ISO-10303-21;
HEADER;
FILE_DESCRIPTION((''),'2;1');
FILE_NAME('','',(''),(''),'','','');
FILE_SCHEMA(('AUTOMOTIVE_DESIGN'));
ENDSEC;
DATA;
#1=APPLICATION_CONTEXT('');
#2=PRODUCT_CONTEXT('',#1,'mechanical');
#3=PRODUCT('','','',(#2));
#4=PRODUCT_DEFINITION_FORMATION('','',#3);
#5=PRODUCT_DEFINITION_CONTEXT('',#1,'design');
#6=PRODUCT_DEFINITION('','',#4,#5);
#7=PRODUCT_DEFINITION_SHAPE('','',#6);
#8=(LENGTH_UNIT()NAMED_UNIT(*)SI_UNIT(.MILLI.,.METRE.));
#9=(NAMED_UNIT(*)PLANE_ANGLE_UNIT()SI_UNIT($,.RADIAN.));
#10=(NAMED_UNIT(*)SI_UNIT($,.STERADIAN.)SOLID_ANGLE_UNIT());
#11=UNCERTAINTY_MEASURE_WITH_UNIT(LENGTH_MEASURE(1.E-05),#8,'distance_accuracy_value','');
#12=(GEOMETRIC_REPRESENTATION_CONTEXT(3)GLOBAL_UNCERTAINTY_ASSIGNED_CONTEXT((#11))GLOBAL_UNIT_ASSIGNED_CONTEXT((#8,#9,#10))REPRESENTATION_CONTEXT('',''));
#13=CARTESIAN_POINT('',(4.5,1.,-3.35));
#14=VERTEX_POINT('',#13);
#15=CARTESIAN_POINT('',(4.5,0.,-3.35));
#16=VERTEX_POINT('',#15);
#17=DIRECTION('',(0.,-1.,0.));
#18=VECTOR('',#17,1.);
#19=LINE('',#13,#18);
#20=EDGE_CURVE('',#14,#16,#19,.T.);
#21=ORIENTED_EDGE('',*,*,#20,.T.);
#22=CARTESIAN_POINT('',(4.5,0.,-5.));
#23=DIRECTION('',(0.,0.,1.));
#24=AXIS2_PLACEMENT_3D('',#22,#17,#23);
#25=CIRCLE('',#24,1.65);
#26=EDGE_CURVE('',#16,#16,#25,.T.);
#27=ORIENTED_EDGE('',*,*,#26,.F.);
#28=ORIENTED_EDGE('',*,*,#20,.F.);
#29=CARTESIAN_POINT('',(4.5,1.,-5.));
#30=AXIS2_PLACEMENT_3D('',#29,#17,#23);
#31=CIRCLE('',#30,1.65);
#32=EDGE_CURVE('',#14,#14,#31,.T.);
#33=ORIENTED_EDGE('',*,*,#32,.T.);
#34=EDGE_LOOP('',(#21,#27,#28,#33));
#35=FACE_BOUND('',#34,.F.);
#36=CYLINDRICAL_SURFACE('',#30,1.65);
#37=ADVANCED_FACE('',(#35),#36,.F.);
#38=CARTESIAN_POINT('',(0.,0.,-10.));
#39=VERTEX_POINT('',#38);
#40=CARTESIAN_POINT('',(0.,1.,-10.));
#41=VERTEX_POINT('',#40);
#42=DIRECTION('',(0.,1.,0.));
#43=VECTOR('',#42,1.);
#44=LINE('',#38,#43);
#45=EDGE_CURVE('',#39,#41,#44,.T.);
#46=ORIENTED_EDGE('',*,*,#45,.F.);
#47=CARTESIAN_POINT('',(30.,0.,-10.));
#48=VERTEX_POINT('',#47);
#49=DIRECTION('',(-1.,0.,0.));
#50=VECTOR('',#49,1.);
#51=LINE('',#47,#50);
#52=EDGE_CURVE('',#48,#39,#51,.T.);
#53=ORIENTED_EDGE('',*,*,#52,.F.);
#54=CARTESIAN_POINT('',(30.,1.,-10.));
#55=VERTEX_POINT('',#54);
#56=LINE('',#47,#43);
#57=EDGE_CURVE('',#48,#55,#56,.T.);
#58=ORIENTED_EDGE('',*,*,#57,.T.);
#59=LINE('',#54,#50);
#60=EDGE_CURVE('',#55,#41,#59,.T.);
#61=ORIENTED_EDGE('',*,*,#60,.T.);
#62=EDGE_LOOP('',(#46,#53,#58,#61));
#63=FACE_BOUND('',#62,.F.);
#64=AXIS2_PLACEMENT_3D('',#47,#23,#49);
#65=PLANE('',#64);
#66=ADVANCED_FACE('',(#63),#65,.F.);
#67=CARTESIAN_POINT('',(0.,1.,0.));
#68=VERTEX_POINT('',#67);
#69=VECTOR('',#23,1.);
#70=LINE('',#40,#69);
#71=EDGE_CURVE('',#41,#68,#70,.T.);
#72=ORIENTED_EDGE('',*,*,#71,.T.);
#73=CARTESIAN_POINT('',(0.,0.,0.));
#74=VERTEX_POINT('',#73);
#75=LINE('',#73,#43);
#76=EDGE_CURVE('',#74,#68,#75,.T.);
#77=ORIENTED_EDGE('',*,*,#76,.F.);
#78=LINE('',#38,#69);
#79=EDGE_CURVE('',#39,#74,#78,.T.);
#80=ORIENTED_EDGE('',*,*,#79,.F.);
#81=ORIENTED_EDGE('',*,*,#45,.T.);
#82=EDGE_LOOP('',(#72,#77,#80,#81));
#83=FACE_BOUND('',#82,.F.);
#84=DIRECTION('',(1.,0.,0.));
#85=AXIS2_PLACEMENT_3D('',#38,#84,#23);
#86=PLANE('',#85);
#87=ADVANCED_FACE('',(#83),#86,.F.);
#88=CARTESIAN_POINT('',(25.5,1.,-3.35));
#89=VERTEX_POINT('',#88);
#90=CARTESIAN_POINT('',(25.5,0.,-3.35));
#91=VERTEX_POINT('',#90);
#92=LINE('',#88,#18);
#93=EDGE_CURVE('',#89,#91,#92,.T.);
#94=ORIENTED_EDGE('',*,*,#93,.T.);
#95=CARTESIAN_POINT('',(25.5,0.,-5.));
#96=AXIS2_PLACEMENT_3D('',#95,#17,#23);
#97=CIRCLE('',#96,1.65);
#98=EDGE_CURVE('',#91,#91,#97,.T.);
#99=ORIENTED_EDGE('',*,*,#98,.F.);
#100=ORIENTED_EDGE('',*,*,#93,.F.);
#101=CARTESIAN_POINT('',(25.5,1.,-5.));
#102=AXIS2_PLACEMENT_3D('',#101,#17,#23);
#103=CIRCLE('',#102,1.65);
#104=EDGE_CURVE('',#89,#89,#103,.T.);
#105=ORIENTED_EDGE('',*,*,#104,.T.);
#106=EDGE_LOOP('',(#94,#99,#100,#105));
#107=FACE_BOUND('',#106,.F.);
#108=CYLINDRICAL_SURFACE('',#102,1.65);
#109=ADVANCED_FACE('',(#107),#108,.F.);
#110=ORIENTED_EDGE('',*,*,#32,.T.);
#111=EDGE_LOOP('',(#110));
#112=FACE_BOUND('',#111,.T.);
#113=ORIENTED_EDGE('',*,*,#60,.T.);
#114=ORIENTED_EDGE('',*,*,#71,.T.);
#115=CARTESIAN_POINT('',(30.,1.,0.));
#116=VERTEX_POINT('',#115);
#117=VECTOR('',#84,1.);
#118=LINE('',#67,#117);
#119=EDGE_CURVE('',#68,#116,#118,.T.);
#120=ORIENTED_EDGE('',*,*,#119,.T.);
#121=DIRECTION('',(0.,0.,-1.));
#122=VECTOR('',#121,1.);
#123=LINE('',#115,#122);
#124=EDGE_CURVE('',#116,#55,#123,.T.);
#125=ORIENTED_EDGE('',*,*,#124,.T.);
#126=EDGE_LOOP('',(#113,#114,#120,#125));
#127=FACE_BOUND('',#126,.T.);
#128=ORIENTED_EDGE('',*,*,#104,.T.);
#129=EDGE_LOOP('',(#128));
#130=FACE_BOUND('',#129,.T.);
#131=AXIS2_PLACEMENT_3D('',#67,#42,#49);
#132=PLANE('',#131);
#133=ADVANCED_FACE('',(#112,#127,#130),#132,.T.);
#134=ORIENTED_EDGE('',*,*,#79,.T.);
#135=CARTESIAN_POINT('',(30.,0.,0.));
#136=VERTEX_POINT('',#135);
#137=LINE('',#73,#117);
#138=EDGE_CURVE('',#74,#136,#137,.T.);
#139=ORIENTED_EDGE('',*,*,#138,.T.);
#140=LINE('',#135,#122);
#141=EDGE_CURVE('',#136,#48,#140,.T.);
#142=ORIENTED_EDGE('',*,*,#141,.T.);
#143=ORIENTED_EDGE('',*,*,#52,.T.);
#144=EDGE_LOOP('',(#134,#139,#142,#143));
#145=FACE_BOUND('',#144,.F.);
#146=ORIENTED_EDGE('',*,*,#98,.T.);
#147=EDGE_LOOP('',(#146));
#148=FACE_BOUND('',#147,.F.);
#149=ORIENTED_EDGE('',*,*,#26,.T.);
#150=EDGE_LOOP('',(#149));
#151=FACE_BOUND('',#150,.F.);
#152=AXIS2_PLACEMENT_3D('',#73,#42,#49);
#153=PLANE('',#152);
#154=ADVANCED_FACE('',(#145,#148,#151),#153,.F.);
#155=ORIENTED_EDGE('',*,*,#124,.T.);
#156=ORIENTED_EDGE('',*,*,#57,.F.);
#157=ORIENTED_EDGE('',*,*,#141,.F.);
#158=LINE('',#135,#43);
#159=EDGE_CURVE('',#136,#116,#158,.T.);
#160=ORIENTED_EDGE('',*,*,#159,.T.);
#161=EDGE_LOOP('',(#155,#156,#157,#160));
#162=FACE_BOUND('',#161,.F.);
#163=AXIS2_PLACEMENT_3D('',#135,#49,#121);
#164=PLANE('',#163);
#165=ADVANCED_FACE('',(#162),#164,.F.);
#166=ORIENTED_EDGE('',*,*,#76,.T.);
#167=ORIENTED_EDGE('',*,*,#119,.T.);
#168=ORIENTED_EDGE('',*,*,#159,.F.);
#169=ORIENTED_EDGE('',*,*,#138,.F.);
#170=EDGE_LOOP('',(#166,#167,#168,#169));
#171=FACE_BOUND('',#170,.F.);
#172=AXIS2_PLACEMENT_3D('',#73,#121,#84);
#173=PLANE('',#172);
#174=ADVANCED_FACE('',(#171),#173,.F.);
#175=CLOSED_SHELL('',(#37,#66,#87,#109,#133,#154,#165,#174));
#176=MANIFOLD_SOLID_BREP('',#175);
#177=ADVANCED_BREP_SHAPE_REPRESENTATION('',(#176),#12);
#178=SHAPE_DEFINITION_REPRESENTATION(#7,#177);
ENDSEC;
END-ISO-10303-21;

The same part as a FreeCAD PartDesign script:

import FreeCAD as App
import Part
import Sketcher
from FreeCAD import Vector


def add_polygon(sketch, points):
    """Adds a closed chain of lines whose ends are joined by coincident constraints."""
    first, n = sketch.GeometryCount, len(points)
    for a, b in zip(points, points[1:] + points[:1]):
        sketch.addGeometry(Part.LineSegment(App.Vector(*a, 0), App.Vector(*b, 0)), False)
    for i in range(n):
        sketch.addConstraint(Sketcher.Constraint("Coincident", first + i, 2, first + (i + 1) % n, 1))

doc = App.newDocument("Part")
body = doc.addObject("PartDesign::Body", "Body")

# Sketch on XZ plane
sketch1 = body.newObject("Sketcher::SketchObject", "Sketch")
sketch1.AttachmentSupport = (doc.getObject("XZ_Plane"), [""])
sketch1.MapMode = "FlatFace"
add_polygon(sketch1, [(0, -10), (0, 0), (30, 0), (30, -10)])  # lines 0-3
sketch1.addConstraint([
    Sketcher.Constraint("Vertical", 0),
    Sketcher.Constraint("Horizontal", 1),
    Sketcher.Constraint("Vertical", 2),
    Sketcher.Constraint("Horizontal", 3),
    Sketcher.Constraint("Coincident", 0, 2, -1, 1),
    Sketcher.Constraint("DistanceX", 1, 1, 1, 2, 30.0),
    Sketcher.Constraint("DistanceY", 0, 1, 0, 2, 10.0),
])
pad1 = body.newObject("PartDesign::Pad", "Pad")
pad1.Profile = sketch1
pad1.Length = 1
pad1.Reversed = True

# Sketch on XZ plane
sketch2 = body.newObject("Sketcher::SketchObject", "Sketch001")
sketch2.AttachmentSupport = (doc.getObject("XZ_Plane"), [""])
sketch2.MapMode = "FlatFace"
sketch2.AttachmentOffset = App.Placement(Vector(0, 0, -1), App.Rotation())
sketch2.addGeometry([
    Part.Circle(Vector(4.5, -5, 0), Vector(0, 0, 1), 1.65),
    Part.Circle(Vector(25.5, -5, 0), Vector(0, 0, 1), 1.65),
], False)
sketch2.addConstraint([
    Sketcher.Constraint("Equal", 0, 1),
    Sketcher.Constraint("Horizontal", 0, 3, 1, 3),
    Sketcher.Constraint("Diameter", 0, 3.3),
    Sketcher.Constraint("DistanceY", 0, 3, -1, 1, 5.0),
    Sketcher.Constraint("DistanceX", 0, 3, 1, 3, 21.0),
    Sketcher.Constraint("DistanceX", -1, 1, 0, 3, 4.5),
])
doc.recompute()
hole = body.newObject("PartDesign::Hole", "Hole")
hole.Profile = sketch2
hole.ThreadType = "None"
hole.Diameter = 3.3
hole.DepthType = "Dimension"
hole.Depth = 2
hole.DrillPoint = "Angled"
hole.DrillPointAngle = 118
hole.Reversed = True

doc.recompute()
